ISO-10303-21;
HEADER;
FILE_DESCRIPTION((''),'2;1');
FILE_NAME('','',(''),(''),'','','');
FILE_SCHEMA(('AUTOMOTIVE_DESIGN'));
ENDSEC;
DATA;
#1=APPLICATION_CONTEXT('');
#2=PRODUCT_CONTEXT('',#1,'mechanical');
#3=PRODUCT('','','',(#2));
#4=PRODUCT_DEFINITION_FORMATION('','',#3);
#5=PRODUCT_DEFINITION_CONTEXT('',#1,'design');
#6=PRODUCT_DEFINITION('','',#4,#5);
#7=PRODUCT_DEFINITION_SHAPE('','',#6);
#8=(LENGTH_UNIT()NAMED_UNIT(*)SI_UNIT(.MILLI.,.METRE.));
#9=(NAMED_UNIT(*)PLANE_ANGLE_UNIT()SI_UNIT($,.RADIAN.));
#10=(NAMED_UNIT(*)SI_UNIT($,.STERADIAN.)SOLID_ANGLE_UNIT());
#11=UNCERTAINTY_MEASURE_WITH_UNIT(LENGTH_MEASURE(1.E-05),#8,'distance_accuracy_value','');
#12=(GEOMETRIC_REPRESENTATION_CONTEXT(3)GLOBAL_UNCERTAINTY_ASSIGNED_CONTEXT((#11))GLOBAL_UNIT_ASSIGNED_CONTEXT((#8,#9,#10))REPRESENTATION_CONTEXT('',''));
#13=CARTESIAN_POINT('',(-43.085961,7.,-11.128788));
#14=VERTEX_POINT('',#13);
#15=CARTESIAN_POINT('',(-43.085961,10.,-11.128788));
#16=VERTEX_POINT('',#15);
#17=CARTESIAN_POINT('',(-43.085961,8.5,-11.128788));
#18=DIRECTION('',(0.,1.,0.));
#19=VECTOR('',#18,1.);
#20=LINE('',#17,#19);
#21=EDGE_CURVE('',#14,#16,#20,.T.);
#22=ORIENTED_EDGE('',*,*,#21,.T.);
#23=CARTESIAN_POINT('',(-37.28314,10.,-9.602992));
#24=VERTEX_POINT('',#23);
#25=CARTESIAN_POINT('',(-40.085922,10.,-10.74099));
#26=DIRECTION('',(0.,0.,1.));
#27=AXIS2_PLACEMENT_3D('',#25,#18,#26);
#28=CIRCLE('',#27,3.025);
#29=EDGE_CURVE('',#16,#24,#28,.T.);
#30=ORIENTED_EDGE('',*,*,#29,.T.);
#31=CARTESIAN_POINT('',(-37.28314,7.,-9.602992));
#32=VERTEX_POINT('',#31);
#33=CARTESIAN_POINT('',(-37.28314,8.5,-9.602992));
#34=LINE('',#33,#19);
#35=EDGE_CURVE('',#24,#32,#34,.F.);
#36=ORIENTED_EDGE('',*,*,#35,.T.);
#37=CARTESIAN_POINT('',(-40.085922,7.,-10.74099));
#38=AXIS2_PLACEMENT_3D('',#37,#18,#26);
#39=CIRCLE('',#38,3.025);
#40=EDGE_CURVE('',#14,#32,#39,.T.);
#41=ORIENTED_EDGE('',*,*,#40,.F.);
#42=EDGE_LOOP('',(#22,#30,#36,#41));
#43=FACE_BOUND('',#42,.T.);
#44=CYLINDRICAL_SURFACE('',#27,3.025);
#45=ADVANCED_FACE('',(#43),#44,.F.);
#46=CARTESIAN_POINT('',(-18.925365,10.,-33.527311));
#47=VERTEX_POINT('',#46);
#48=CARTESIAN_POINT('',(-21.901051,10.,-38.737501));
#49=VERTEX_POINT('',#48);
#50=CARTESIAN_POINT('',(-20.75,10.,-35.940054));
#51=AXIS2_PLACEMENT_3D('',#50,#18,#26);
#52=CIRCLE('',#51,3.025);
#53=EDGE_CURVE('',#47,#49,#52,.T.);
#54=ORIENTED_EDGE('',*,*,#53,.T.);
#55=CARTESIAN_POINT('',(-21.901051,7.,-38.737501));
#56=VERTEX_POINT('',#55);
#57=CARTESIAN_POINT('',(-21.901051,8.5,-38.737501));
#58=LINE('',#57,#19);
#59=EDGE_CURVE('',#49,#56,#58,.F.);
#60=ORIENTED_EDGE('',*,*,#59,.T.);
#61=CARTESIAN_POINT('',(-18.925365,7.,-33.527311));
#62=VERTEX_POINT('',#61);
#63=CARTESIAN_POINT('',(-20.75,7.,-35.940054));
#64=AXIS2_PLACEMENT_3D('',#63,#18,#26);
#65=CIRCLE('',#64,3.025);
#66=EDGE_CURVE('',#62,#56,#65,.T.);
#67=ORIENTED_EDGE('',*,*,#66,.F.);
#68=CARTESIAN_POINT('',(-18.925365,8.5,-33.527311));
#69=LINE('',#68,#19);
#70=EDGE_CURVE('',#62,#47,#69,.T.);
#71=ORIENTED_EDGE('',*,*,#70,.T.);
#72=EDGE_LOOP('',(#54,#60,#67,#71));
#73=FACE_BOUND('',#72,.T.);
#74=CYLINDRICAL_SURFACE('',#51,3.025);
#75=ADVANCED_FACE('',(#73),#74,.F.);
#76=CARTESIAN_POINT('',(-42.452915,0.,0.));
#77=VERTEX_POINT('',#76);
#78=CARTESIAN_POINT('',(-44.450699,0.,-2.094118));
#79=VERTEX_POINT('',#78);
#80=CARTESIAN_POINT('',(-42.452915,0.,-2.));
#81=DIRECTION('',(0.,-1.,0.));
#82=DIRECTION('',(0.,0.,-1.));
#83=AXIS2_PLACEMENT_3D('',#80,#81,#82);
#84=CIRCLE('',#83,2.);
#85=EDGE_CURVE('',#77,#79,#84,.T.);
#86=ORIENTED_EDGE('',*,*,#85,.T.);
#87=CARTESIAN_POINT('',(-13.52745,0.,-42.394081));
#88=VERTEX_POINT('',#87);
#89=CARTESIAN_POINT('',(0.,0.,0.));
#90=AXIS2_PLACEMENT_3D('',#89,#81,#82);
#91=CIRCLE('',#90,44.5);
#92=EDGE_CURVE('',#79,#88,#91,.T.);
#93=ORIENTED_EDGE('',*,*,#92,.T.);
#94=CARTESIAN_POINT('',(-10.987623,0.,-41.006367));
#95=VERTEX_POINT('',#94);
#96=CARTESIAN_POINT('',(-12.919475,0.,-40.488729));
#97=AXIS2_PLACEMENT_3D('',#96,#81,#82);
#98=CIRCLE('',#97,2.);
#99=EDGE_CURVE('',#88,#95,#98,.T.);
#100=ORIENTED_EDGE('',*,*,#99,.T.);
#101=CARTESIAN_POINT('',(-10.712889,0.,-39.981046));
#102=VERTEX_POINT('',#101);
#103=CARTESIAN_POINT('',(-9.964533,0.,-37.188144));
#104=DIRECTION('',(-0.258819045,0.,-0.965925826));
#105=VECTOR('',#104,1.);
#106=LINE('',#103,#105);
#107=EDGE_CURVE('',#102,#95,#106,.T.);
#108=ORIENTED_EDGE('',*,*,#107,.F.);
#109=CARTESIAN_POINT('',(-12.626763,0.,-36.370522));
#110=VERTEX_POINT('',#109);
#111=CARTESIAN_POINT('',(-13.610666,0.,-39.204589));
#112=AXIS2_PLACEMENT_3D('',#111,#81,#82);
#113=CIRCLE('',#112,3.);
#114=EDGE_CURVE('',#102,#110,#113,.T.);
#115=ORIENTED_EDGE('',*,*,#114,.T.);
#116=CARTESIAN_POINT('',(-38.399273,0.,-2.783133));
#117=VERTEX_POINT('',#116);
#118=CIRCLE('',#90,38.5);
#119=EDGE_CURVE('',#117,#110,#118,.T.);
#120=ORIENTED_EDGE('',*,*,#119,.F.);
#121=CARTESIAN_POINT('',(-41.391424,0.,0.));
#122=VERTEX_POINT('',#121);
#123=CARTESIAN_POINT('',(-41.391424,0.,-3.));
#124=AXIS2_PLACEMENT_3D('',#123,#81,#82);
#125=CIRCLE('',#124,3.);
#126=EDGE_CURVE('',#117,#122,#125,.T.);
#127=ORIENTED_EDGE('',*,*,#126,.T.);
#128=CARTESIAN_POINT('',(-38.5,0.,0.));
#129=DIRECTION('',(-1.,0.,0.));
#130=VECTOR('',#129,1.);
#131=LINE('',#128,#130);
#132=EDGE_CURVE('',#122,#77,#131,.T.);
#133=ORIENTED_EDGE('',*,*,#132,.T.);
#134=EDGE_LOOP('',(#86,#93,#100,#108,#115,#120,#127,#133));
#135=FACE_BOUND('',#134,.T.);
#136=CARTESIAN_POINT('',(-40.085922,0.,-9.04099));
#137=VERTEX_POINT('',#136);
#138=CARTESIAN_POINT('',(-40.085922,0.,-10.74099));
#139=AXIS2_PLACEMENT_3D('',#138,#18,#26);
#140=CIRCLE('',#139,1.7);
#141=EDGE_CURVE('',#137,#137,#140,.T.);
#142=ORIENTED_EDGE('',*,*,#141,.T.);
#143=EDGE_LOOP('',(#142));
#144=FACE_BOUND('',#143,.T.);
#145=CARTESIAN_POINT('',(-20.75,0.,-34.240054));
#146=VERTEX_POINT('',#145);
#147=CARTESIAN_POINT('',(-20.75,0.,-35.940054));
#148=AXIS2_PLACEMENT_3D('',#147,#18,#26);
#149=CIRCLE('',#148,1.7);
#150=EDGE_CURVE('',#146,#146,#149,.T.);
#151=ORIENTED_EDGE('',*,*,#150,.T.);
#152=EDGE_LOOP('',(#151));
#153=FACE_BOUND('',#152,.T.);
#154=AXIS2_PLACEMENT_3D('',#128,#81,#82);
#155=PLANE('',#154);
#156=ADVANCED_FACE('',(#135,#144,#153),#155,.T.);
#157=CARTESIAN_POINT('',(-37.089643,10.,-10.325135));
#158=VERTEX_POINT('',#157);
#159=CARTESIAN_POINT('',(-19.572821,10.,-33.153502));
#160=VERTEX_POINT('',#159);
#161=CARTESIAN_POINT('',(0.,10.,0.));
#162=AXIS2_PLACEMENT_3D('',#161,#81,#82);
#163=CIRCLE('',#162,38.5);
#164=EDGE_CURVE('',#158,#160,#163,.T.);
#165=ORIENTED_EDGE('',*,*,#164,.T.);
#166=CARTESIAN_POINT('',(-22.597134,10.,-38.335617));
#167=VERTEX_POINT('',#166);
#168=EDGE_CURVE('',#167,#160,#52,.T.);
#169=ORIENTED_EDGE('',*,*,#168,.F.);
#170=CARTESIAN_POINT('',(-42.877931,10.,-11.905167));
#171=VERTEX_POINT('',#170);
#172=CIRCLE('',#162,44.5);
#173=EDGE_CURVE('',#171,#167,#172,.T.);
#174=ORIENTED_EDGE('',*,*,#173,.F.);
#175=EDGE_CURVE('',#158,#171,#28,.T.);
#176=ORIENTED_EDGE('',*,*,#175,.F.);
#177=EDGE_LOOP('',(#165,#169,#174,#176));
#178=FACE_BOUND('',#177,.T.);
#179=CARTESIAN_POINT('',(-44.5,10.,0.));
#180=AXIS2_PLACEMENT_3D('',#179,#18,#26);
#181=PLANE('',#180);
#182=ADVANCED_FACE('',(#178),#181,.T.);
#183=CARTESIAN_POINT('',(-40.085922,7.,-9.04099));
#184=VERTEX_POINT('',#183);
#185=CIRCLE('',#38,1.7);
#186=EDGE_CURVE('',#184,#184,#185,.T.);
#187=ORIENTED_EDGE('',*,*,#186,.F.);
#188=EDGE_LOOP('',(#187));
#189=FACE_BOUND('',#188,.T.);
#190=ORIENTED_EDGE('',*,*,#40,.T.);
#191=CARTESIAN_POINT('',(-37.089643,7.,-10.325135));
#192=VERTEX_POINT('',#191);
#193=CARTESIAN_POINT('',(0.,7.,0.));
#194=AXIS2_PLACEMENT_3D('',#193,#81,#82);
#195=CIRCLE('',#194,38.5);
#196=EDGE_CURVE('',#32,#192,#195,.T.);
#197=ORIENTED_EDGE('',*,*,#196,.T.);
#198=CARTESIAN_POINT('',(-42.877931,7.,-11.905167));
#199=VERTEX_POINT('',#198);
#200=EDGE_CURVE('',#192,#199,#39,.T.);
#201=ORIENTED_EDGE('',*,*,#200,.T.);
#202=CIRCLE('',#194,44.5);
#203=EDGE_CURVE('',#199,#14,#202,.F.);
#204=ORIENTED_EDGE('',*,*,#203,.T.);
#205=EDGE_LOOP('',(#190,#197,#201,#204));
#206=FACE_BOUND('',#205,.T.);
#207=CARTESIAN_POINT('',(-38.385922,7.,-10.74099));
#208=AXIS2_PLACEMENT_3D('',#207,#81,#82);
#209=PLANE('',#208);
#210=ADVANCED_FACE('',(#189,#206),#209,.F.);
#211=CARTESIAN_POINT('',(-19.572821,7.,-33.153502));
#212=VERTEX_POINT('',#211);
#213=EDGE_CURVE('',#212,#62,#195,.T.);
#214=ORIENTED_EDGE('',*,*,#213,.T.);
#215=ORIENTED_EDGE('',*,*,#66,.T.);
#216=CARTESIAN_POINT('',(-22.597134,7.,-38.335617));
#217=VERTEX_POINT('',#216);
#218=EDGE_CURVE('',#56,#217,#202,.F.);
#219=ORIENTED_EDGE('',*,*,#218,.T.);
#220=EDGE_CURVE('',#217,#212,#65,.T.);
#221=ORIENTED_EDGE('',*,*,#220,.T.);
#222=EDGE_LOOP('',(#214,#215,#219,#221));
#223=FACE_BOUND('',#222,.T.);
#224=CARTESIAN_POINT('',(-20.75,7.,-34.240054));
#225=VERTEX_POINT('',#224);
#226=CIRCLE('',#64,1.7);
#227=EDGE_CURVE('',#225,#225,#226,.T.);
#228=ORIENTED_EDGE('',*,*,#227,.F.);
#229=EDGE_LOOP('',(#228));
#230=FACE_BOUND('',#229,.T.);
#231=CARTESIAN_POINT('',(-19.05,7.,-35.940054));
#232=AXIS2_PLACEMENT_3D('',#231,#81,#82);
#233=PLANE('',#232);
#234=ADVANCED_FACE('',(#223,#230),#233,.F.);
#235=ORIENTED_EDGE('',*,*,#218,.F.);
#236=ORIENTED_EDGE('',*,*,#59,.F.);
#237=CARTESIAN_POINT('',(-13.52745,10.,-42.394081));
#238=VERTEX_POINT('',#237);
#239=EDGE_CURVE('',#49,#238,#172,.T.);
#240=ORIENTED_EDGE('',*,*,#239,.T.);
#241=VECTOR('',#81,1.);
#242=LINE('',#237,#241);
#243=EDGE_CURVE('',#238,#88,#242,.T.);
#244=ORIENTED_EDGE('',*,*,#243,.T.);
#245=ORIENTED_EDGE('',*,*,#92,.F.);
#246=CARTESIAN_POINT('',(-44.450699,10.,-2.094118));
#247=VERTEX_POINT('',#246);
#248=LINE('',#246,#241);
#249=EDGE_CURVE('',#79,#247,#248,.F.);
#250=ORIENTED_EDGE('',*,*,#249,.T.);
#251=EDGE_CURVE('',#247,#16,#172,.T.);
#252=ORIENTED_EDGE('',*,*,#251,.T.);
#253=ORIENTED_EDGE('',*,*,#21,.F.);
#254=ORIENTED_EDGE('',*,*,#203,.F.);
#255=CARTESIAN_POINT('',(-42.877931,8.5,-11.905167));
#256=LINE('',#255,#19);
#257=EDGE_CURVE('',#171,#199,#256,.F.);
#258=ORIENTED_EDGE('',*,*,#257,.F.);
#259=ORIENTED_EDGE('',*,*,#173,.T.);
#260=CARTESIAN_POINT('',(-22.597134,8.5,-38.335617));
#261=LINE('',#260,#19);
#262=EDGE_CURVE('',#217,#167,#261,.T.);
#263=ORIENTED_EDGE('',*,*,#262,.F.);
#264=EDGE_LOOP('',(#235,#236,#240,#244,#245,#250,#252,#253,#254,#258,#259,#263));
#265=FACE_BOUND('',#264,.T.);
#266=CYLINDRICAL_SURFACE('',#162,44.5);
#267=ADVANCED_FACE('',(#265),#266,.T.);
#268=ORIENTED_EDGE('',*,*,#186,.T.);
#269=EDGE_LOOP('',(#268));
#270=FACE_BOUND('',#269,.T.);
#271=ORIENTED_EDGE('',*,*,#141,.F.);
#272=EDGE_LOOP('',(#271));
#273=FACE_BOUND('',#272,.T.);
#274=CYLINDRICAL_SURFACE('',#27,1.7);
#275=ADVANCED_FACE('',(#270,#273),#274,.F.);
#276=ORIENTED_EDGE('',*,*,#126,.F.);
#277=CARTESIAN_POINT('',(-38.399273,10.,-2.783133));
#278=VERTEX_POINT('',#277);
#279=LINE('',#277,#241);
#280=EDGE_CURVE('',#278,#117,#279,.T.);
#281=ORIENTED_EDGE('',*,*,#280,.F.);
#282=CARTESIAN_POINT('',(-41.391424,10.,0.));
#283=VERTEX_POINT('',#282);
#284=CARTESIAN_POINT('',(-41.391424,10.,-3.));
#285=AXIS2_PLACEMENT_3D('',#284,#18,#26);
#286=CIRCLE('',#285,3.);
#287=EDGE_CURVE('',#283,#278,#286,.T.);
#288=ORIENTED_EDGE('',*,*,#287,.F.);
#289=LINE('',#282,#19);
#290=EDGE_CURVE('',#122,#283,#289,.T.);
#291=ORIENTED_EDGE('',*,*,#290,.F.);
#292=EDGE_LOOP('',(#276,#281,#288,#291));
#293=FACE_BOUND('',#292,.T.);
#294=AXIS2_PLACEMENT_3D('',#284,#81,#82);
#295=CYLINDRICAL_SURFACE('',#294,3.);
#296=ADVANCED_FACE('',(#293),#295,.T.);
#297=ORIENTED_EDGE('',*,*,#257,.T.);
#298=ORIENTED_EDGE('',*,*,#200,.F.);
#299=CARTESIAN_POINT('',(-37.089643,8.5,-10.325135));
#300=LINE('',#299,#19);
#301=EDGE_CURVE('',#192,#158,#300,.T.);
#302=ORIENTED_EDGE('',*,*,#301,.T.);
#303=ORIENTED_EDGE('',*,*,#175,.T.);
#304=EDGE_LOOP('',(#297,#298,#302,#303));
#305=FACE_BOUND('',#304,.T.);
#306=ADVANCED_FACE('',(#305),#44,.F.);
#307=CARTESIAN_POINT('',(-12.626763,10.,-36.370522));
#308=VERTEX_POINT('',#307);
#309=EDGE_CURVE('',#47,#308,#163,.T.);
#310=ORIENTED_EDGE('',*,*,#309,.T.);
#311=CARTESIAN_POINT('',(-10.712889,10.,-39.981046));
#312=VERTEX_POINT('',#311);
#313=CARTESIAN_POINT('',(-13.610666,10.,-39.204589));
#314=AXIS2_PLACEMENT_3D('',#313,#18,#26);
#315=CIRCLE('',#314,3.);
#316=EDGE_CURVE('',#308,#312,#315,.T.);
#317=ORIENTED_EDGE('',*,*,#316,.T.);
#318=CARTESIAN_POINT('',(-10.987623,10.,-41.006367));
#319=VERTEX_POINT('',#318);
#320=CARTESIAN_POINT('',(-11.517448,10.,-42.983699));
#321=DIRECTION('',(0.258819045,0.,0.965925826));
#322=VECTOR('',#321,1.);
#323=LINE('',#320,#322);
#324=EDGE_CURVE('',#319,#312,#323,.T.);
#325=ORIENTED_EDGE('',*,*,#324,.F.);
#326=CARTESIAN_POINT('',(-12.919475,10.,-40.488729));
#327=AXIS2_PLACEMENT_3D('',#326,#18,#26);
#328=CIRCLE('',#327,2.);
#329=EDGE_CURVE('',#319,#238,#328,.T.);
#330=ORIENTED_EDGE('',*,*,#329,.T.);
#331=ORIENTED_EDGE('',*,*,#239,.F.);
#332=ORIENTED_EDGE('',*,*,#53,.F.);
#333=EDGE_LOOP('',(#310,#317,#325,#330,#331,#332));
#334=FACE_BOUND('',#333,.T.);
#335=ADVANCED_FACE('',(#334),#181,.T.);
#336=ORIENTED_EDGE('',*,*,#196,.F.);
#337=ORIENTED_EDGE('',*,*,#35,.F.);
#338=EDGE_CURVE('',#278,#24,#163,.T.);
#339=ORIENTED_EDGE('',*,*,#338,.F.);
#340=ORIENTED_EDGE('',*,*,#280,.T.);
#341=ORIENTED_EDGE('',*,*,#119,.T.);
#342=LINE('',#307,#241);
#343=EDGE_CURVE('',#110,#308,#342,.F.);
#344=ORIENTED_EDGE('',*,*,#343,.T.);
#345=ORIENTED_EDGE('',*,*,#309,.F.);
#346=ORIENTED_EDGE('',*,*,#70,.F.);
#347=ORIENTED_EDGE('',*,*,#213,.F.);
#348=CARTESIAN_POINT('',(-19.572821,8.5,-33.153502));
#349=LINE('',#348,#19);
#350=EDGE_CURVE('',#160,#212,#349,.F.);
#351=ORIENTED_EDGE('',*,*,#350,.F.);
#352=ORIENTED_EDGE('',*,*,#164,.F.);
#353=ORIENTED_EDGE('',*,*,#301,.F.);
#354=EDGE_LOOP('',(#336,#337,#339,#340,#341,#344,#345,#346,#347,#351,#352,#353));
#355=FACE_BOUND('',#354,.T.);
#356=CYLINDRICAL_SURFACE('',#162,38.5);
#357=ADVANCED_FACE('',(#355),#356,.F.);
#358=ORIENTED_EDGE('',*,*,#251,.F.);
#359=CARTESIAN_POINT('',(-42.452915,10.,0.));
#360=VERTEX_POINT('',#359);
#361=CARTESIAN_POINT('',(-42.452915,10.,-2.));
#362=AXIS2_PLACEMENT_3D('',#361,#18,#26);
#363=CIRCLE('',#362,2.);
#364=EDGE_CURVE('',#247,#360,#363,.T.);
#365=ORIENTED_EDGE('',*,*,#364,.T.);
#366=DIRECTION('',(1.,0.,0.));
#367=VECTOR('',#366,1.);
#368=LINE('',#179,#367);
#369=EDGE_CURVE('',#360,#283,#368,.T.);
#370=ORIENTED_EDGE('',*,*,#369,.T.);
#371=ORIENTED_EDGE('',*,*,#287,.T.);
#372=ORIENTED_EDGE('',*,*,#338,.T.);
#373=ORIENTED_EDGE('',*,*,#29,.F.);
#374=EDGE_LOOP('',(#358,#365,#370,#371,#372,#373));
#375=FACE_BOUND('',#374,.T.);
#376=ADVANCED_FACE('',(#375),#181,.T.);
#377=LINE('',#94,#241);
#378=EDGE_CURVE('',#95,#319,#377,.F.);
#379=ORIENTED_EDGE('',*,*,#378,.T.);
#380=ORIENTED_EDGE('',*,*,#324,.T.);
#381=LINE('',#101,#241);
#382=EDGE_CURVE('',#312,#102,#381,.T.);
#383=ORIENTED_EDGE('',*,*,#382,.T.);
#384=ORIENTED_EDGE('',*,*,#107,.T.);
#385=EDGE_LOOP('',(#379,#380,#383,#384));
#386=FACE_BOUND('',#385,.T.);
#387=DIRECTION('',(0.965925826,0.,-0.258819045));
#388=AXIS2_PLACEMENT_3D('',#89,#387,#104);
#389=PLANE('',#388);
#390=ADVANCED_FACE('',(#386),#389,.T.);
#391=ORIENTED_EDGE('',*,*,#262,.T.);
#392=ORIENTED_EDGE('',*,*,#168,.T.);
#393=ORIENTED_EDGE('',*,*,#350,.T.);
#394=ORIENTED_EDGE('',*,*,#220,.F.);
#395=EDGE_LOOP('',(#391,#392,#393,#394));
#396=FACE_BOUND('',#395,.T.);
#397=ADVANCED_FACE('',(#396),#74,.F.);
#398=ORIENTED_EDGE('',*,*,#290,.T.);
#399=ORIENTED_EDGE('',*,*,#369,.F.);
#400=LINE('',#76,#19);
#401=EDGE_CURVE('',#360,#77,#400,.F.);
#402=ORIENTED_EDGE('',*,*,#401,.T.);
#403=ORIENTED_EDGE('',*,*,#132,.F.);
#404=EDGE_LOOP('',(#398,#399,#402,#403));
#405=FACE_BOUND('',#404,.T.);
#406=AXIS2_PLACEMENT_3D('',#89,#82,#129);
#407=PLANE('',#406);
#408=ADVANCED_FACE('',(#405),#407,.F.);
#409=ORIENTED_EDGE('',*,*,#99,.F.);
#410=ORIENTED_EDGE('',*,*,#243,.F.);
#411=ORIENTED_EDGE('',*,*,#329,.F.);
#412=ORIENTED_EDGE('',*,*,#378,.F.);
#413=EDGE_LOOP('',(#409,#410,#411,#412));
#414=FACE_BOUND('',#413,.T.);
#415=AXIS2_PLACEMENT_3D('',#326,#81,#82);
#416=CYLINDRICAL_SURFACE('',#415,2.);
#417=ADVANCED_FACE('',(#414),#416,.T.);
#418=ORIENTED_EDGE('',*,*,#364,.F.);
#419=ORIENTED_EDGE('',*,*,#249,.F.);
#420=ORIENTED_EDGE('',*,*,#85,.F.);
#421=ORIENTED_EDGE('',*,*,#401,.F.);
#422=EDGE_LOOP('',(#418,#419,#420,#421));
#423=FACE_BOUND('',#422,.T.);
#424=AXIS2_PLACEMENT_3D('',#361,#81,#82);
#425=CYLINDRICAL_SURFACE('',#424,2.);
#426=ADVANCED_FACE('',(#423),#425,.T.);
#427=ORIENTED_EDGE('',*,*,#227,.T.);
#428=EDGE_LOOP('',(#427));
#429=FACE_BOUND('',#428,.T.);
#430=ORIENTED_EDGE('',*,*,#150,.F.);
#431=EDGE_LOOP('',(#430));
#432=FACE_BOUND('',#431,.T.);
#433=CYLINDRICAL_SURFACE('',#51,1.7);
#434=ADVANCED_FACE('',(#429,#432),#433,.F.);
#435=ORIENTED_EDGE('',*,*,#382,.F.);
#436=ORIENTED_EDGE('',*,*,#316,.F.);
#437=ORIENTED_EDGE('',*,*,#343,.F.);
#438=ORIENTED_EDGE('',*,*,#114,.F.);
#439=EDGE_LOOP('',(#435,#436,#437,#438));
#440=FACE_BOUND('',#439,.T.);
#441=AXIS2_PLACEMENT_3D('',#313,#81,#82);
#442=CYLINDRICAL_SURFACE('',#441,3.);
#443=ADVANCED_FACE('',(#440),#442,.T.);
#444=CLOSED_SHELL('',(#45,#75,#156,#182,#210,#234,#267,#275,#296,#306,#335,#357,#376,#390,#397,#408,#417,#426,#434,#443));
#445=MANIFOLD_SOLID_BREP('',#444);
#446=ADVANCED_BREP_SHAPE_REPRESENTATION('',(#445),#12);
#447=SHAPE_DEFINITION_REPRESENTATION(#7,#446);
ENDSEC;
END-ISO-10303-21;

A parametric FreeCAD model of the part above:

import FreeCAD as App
import Part
import Sketcher
from FreeCAD import Vector
Q = App.Units.Quantity


def edges_at(feature, points):
    """Names of the edges that pass closest to the given points."""
    edges = feature.Shape.Edges
    near = lambda p: min(range(len(edges)), key=lambda i: edges[i].distToShape(Part.Vertex(*p))[0])
    return sorted({f"Edge{near(p) + 1}" for p in points})

doc = App.newDocument("Part")
params = doc.addObject("Spreadsheet::Sheet", "Params")
for row, (alias, value) in enumerate([
    ("sketch1_width", "10 mm"),
    ("sketch1_height", "6 mm"),
    ("revolution_angle", "75 deg"),
    ("sketch2_diameter", "3.4 mm"),
    ("hole_diameter", "3.4 mm"),
    ("hole_cbore_diameter", "6.05 mm"),
    ("hole_cbore_depth", "3 mm"),
    ("fillet_radius", "2 mm"),
    ("fillet2_radius", "3 mm"),
], start=1):
    params.set(f"A{row}", alias)
    params.set(f"B{row}", "=" + value)
    params.setAlias(f"B{row}", alias)

body = doc.addObject("PartDesign::Body", "Body")

# Sketch on an angled plane
sketch1 = doc.addObject("Sketcher::SketchObject", "Sketch")
body.addObject(sketch1)
sketch1.Placement = App.Placement(Vector(0, 0, 0), App.Rotation(Vector(0, 1, 0), Vector(0.258819045, 0, 0.965925826), Vector(0.965925826, 0, -0.258819045), "ZXY"))
sketch1.addGeometry([
    Part.LineSegment(Vector(0, -38.5, 0), Vector(0, -44.5, 0)),
    Part.LineSegment(Vector(0, -44.5, 0), Vector(10, -44.5, 0)),
    Part.LineSegment(Vector(10, -44.5, 0), Vector(10, -38.5, 0)),
    Part.LineSegment(Vector(10, -38.5, 0), Vector(0, -38.5, 0)),
], False)
sketch1.addConstraint([
    Sketcher.Constraint("Coincident", 0, 2, 1, 1),
    Sketcher.Constraint("Coincident", 1, 2, 2, 1),
    Sketcher.Constraint("Coincident", 2, 2, 3, 1),
    Sketcher.Constraint("Coincident", 3, 2, 0, 1),
    Sketcher.Constraint("Vertical", 0),
    Sketcher.Constraint("Horizontal", 1),
    Sketcher.Constraint("Vertical", 2),
    Sketcher.Constraint("Horizontal", 3),
    Sketcher.Constraint("PointOnObject", 0, 2, -2),
    Sketcher.Constraint("DistanceX", 1, 1, 1, 2, Q("10 mm")),
    Sketcher.Constraint("DistanceY", 0, 2, 0, 1, Q("6 mm")),
    Sketcher.Constraint("DistanceY", 0, 2, -1, 1, Q("44.5 mm")),
])
sketch1.setExpression("Constraints[9]", "Params.sketch1_width")
sketch1.setExpression("Constraints[10]", "Params.sketch1_height")
revolution = doc.addObject("PartDesign::Revolution", "Revolution")
body.addObject(revolution)
revolution.Profile = sketch1
revolution.ReferenceAxis = (sketch1, ["H_Axis"])
revolution.setExpression("Angle", "Params.revolution_angle")

# Sketch on XZ plane
sketch2 = doc.addObject("Sketcher::SketchObject", "Sketch001")
body.addObject(sketch2)
sketch2.AttachmentSupport = (doc.XZ_Plane, [""])
sketch2.MapMode = "FlatFace"
sketch2.AttachmentOffset = App.Placement(Vector(0, 0, -10), App.Rotation())
sketch2.addGeometry([
    Part.Circle(Vector(-40.085922, -10.74099, 0), Vector(0, 0, 1), 1.7),
    Part.Circle(Vector(-20.75, -35.940054, 0), Vector(0, 0, 1), 1.7),
], False)
sketch2.addConstraint([
    Sketcher.Constraint("Equal", 0, 1),
    Sketcher.Constraint("Diameter", 0, Q("3.4 mm")),
    Sketcher.Constraint("DistanceX", 1, 3, -1, 1, Q("20.75 mm")),
    Sketcher.Constraint("DistanceX", 0, 3, -1, 1, Q("40.085922 mm")),
    Sketcher.Constraint("DistanceY", 0, 3, -1, 1, Q("10.74099 mm")),
    Sketcher.Constraint("DistanceY", 1, 3, -1, 1, Q("35.940054 mm")),
])
sketch2.setExpression("Constraints[1]", "Params.sketch2_diameter")
doc.recompute()
hole = doc.addObject("PartDesign::Hole", "Hole")
body.addObject(hole)
hole.Profile = sketch2
hole.ThreadType = "None"
hole.setExpression("Diameter", "Params.hole_diameter")
hole.DepthType = "ThroughAll"
hole.HoleCutType = "Counterbore"
hole.setExpression("HoleCutDiameter", "Params.hole_cbore_diameter")
hole.setExpression("HoleCutDepth", "Params.hole_cbore_depth")
hole.Reversed = True
doc.recompute()

fillet = doc.addObject("PartDesign::Fillet", "Fillet")
body.addObject(fillet)
fillet.Base = (hole, edges_at(hole, [(-11.517, 5, -42.984), (-44.5, 5, 0)]))
fillet.setExpression("Radius", "Params.fillet_radius")
doc.recompute()

fillet2 = doc.addObject("PartDesign::Fillet", "Fillet001")
body.addObject(fillet2)
fillet2.Base = (fillet, edges_at(fillet, [(-38.5, 5, 0), (-9.965, 5, -37.188)]))
fillet2.setExpression("Radius", "Params.fillet2_radius")

doc.recompute()
